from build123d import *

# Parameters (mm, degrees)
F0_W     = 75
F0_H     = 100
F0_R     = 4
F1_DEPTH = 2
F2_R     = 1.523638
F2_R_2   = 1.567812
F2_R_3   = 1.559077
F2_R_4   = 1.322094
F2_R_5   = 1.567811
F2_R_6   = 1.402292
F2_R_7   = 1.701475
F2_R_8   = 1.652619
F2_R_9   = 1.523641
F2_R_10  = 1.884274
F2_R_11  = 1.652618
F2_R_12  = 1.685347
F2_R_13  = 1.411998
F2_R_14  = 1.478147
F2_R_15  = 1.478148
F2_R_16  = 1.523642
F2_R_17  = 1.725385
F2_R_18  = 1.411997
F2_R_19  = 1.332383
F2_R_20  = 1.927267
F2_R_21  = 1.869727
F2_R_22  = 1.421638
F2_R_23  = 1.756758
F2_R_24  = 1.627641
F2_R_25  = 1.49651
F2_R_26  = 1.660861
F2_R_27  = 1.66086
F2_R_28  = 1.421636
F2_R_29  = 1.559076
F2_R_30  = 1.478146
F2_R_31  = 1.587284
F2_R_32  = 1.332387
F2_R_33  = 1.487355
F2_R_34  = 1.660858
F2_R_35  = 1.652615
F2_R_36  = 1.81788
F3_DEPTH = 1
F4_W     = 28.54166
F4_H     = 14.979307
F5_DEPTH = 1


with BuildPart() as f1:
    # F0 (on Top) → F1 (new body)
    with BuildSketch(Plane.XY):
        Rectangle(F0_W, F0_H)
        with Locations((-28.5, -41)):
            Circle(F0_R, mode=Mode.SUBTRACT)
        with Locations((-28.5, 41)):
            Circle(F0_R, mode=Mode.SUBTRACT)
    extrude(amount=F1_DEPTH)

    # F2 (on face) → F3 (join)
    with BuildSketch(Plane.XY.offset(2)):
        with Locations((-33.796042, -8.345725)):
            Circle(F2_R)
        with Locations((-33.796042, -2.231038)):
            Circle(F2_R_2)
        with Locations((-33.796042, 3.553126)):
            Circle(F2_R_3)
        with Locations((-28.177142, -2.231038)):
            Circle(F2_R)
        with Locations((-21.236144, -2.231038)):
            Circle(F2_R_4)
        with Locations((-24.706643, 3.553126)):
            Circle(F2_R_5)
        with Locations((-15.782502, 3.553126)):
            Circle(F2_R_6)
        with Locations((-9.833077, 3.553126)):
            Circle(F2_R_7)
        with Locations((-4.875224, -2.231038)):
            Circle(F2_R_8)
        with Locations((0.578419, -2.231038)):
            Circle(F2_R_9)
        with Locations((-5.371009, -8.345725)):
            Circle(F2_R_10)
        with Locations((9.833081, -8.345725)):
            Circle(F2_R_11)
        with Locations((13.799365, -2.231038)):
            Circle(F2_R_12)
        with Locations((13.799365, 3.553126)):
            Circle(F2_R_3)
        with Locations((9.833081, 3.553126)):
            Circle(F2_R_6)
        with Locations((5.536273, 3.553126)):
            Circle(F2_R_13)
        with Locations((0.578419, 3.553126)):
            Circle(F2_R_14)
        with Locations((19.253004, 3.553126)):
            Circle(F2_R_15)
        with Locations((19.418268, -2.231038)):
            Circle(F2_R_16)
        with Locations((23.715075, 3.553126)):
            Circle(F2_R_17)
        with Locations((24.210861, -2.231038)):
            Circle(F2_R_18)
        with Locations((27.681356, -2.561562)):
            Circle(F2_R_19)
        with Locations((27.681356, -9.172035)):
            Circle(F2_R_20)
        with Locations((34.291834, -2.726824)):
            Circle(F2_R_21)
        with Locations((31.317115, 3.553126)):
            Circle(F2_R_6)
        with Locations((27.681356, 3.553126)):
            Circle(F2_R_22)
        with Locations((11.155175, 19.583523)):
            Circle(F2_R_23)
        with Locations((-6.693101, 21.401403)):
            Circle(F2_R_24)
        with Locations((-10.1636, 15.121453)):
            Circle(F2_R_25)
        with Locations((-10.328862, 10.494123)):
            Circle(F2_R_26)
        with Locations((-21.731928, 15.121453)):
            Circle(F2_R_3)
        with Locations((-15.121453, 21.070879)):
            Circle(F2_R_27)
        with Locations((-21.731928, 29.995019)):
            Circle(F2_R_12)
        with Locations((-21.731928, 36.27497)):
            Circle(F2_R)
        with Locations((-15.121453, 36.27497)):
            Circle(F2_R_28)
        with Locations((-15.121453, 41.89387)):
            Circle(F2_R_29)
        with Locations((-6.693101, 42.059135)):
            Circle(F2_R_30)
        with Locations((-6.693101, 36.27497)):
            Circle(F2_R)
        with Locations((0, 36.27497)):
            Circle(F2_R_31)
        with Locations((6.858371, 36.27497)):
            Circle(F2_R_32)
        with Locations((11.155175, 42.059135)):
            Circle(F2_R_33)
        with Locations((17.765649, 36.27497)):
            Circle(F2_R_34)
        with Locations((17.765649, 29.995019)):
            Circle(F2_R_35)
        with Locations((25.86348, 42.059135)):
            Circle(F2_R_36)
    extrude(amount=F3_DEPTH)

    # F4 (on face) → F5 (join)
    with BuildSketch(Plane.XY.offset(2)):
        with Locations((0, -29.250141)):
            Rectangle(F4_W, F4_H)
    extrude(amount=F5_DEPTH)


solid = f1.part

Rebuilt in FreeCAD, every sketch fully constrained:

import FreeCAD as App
import Part
import Sketcher
Q = App.Units.Quantity


def add_polygon(sketch, points):
    """Adds a closed chain of lines whose ends are joined by coincident constraints."""
    first, n = sketch.GeometryCount, len(points)
    for a, b in zip(points, points[1:] + points[:1]):
        sketch.addGeometry(Part.LineSegment(App.Vector(*a, 0), App.Vector(*b, 0)), False)
    for i in range(n):
        sketch.addConstraint(Sketcher.Constraint("Coincident", first + i, 2, first + (i + 1) % n, 1))

doc = App.newDocument("Part")
params = doc.addObject("Spreadsheet::Sheet", "Params")
for row, (alias, value) in enumerate([
    ("sketch1_diameter", "8 mm"),
    ("sketch1_width", "75 mm"),
    ("sketch1_height", "100 mm"),
    ("pad1_length", "2 mm"),
    ("pad2_length", "1 mm"),
    ("pad3_length", "1 mm"),
], start=1):
    params.set(f"A{row}", alias)
    params.set(f"B{row}", "=" + value)
    params.setAlias(f"B{row}", alias)

body = doc.addObject("PartDesign::Body", "Body")

# Sketch on XY plane
sketch1 = body.newObject("Sketcher::SketchObject", "Sketch")
sketch1.AttachmentSupport = (doc.getObject("XY_Plane"), [""])
sketch1.MapMode = "FlatFace"
add_polygon(sketch1, [(-37.5, 50), (-37.5, -50), (37.5, -50), (37.5, 50)])  # lines 0-3
sketch1.addGeometry(Part.Circle(App.Vector(-28.5, -41, 0), App.Vector(0, 0, 1), 4), False)  # 4
sketch1.addGeometry(Part.Circle(App.Vector(-28.5, 41, 0), App.Vector(0, 0, 1), 4), False)  # 5
sketch1.addConstraint([
    Sketcher.Constraint("Vertical", 0),
    Sketcher.Constraint("Horizontal", 1),
    Sketcher.Constraint("Vertical", 2),
    Sketcher.Constraint("Horizontal", 3),
    Sketcher.Constraint("Equal", 4, 5),
    Sketcher.Constraint("Symmetric", 0, 2, 2, 2, -1, 1),
    Sketcher.Constraint("Symmetric", 4, 3, 5, 3, -1),
    Sketcher.Constraint("Diameter", 4, Q("8 mm")),
    Sketcher.Constraint("DistanceX", 1, 1, 1, 2, Q("75 mm")),
    Sketcher.Constraint("DistanceY", 0, 2, 0, 1, Q("100 mm")),
    Sketcher.Constraint("DistanceY", 4, 3, -1, 1, Q("41 mm")),
    Sketcher.Constraint("DistanceX", 0, 2, 4, 3, Q("9 mm")),
])
sketch1.setExpression("Constraints[11]", "Params.sketch1_diameter")
sketch1.setExpression("Constraints[12]", "Params.sketch1_width")
sketch1.setExpression("Constraints[13]", "Params.sketch1_height")
pad1 = body.newObject("PartDesign::Pad", "Pad")
pad1.Profile = sketch1
pad1.setExpression("Length", "Params.pad1_length")

# Sketch on XY plane
sketch2 = body.newObject("Sketcher::SketchObject", "Sketch001")
sketch2.AttachmentSupport = (doc.getObject("XY_Plane"), [""])
sketch2.MapMode = "FlatFace"
sketch2.AttachmentOffset = App.Placement(App.Vector(0, 0, 2), App.Rotation())
sketch2.addGeometry([
    Part.Circle(App.Vector(-33.796042, -8.345725, 0), App.Vector(0, 0, 1), 1.523638),  # 0
    Part.Circle(App.Vector(-33.796042, -2.231038, 0), App.Vector(0, 0, 1), 1.567812),  # 1
    Part.Circle(App.Vector(-33.796042, 3.553126, 0), App.Vector(0, 0, 1), 1.559077),  # 2
    Part.Circle(App.Vector(-28.177142, -2.231038, 0), App.Vector(0, 0, 1), 1.523638),  # 3
    Part.Circle(App.Vector(-21.236144, -2.231038, 0), App.Vector(0, 0, 1), 1.322094),  # 4
    Part.Circle(App.Vector(-24.706643, 3.553126, 0), App.Vector(0, 0, 1), 1.567811),  # 5
    Part.Circle(App.Vector(-15.782502, 3.553126, 0), App.Vector(0, 0, 1), 1.402292),  # 6
    Part.Circle(App.Vector(-9.833077, 3.553126, 0), App.Vector(0, 0, 1), 1.701475),  # 7
    Part.Circle(App.Vector(-4.875224, -2.231038, 0), App.Vector(0, 0, 1), 1.652619),  # 8
    Part.Circle(App.Vector(0.578419, -2.231038, 0), App.Vector(0, 0, 1), 1.523641),  # 9
    Part.Circle(App.Vector(-5.371009, -8.345725, 0), App.Vector(0, 0, 1), 1.884274),  # 10
    Part.Circle(App.Vector(9.833081, -8.345725, 0), App.Vector(0, 0, 1), 1.652618),  # 11
    Part.Circle(App.Vector(13.799365, -2.231038, 0), App.Vector(0, 0, 1), 1.685347),  # 12
    Part.Circle(App.Vector(13.799365, 3.553126, 0), App.Vector(0, 0, 1), 1.559077),  # 13
    Part.Circle(App.Vector(9.833081, 3.553126, 0), App.Vector(0, 0, 1), 1.402292),  # 14
    Part.Circle(App.Vector(5.536273, 3.553126, 0), App.Vector(0, 0, 1), 1.411998),  # 15
    Part.Circle(App.Vector(0.578419, 3.553126, 0), App.Vector(0, 0, 1), 1.478147),  # 16
    Part.Circle(App.Vector(19.253004, 3.553126, 0), App.Vector(0, 0, 1), 1.478148),  # 17
    Part.Circle(App.Vector(19.418268, -2.231038, 0), App.Vector(0, 0, 1), 1.523642),  # 18
    Part.Circle(App.Vector(23.715075, 3.553126, 0), App.Vector(0, 0, 1), 1.725385),  # 19
    Part.Circle(App.Vector(24.210861, -2.231038, 0), App.Vector(0, 0, 1), 1.411997),  # 20
    Part.Circle(App.Vector(27.681356, -2.561562, 0), App.Vector(0, 0, 1), 1.332383),  # 21
    Part.Circle(App.Vector(27.681356, -9.172035, 0), App.Vector(0, 0, 1), 1.927267),  # 22
    Part.Circle(App.Vector(34.291834, -2.726824, 0), App.Vector(0, 0, 1), 1.869727),  # 23
    Part.Circle(App.Vector(31.317115, 3.553126, 0), App.Vector(0, 0, 1), 1.402292),  # 24
    Part.Circle(App.Vector(27.681356, 3.553126, 0), App.Vector(0, 0, 1), 1.421638),  # 25
    Part.Circle(App.Vector(11.155175, 19.583523, 0), App.Vector(0, 0, 1), 1.756758),  # 26
    Part.Circle(App.Vector(-6.693101, 21.401403, 0), App.Vector(0, 0, 1), 1.627641),  # 27
    Part.Circle(App.Vector(-10.1636, 15.121453, 0), App.Vector(0, 0, 1), 1.49651),  # 28
    Part.Circle(App.Vector(-10.328862, 10.494123, 0), App.Vector(0, 0, 1), 1.660861),  # 29
    Part.Circle(App.Vector(-21.731928, 15.121453, 0), App.Vector(0, 0, 1), 1.559077),  # 30
    Part.Circle(App.Vector(-15.121453, 21.070879, 0), App.Vector(0, 0, 1), 1.66086),  # 31
    Part.Circle(App.Vector(-21.731928, 29.995019, 0), App.Vector(0, 0, 1), 1.685347),  # 32
    Part.Circle(App.Vector(-21.731928, 36.27497, 0), App.Vector(0, 0, 1), 1.523638),  # 33
    Part.Circle(App.Vector(-15.121453, 36.27497, 0), App.Vector(0, 0, 1), 1.421636),  # 34
    Part.Circle(App.Vector(-15.121453, 41.89387, 0), App.Vector(0, 0, 1), 1.559076),  # 35
    Part.Circle(App.Vector(-6.693101, 42.059135, 0), App.Vector(0, 0, 1), 1.478146),  # 36
    Part.Circle(App.Vector(-6.693101, 36.27497, 0), App.Vector(0, 0, 1), 1.523638),  # 37
    Part.Circle(App.Vector(0, 36.27497, 0), App.Vector(0, 0, 1), 1.587284),  # 38
    Part.Circle(App.Vector(6.858371, 36.27497, 0), App.Vector(0, 0, 1), 1.332387),  # 39
    Part.Circle(App.Vector(11.155175, 42.059135, 0), App.Vector(0, 0, 1), 1.487355),  # 40
    Part.Circle(App.Vector(17.765649, 36.27497, 0), App.Vector(0, 0, 1), 1.660858),  # 41
    Part.Circle(App.Vector(17.765649, 29.995019, 0), App.Vector(0, 0, 1), 1.652615),  # 42
    Part.Circle(App.Vector(25.86348, 42.059135, 0), App.Vector(0, 0, 1), 1.81788),  # 43
], False)
sketch2.addConstraint([
    Sketcher.Constraint("Equal", 0, 3),
    Sketcher.Constraint("Equal", 1, 5),
    Sketcher.Constraint("Equal", 8, 11),
    Sketcher.Constraint("Equal", 2, 13),
    Sketcher.Constraint("Equal", 6, 14),
    Sketcher.Constraint("Equal", 16, 17),
    Sketcher.Constraint("Equal", 9, 18),
    Sketcher.Constraint("Equal", 15, 20),
    Sketcher.Constraint("Equal", 14, 24),
    Sketcher.Constraint("Equal", 13, 30),
    Sketcher.Constraint("Equal", 29, 31),
    Sketcher.Constraint("Equal", 12, 32),
    Sketcher.Constraint("Equal", 3, 33),
    Sketcher.Constraint("Equal", 30, 35),
    Sketcher.Constraint("Equal", 16, 36),
    Sketcher.Constraint("Equal", 33, 37),
    Sketcher.Constraint("Symmetric", 7, 3, 14, 3, -2),
    Sketcher.Constraint("PointOnObject", 38, 3, -2),
    Sketcher.Constraint("Horizontal", 1, 3, 3, 3),
    Sketcher.Constraint("Horizontal", 3, 3, 4, 3),
    Sketcher.Constraint("Horizontal", 2, 3, 5, 3),
    Sketcher.Constraint("Horizontal", 5, 3, 6, 3),
    Sketcher.Constraint("Horizontal", 6, 3, 7, 3),
    Sketcher.Constraint("Horizontal", 4, 3, 8, 3),
    Sketcher.Constraint("Horizontal", 8, 3, 9, 3),
    Sketcher.Constraint("Horizontal", 0, 3, 10, 3),
    Sketcher.Constraint("Horizontal", 10, 3, 11, 3),
    Sketcher.Constraint("Horizontal", 9, 3, 12, 3),
    Sketcher.Constraint("Horizontal", 7, 3, 13, 3),
    Sketcher.Constraint("Horizontal", 14, 3, 15, 3),
    Sketcher.Constraint("Horizontal", 15, 3, 16, 3),
    Sketcher.Constraint("Horizontal", 16, 3, 17, 3),
    Sketcher.Constraint("Horizontal", 12, 3, 18, 3),
    Sketcher.Constraint("Horizontal", 17, 3, 19, 3),
    Sketcher.Constraint("Horizontal", 18, 3, 20, 3),
    Sketcher.Constraint("Horizontal", 19, 3, 24, 3),
    Sketcher.Constraint("Horizontal", 24, 3, 25, 3),
    Sketcher.Constraint("Horizontal", 28, 3, 30, 3),
    Sketcher.Constraint("Horizontal", 33, 3, 34, 3),
    Sketcher.Constraint("Horizontal", 34, 3, 37, 3),
    Sketcher.Constraint("Horizontal", 37, 3, 38, 3),
    Sketcher.Constraint("Horizontal", 38, 3, 39, 3),
    Sketcher.Constraint("Horizontal", 36, 3, 40, 3),
    Sketcher.Constraint("Horizontal", 39, 3, 41, 3),
    Sketcher.Constraint("Horizontal", 32, 3, 42, 3),
    Sketcher.Constraint("Horizontal", 40, 3, 43, 3),
    Sketcher.Constraint("Vertical", 0, 3, 1, 3),
    Sketcher.Constraint("Vertical", 1, 3, 2, 3),
    Sketcher.Constraint("Vertical", 12, 3, 13, 3),
    Sketcher.Constraint("Vertical", 11, 3, 14, 3),
    Sketcher.Constraint("Vertical", 9, 3, 16, 3),
    Sketcher.Constraint("Vertical", 21, 3, 22, 3),
    Sketcher.Constraint("Vertical", 22, 3, 25, 3),
    Sketcher.Constraint("Vertical", 30, 3, 32, 3),
    Sketcher.Constraint("Vertical", 32, 3, 33, 3),
    Sketcher.Constraint("Vertical", 31, 3, 34, 3),
    Sketcher.Constraint("Vertical", 34, 3, 35, 3),
    Sketcher.Constraint("Vertical", 27, 3, 36, 3),
    Sketcher.Constraint("Vertical", 36, 3, 37, 3),
    Sketcher.Constraint("Vertical", 26, 3, 40, 3),
    Sketcher.Constraint("Vertical", 41, 3, 42, 3),
    Sketcher.Constraint("Diameter", 4, Q("2.644188 mm")),
    Sketcher.Constraint("Diameter", 7, Q("3.40295 mm")),
    Sketcher.Constraint("Diameter", 8, Q("3.305238 mm")),
    Sketcher.Constraint("Diameter", 9, Q("3.047282 mm")),
    Sketcher.Constraint("Diameter", 10, Q("3.768548 mm")),
    Sketcher.Constraint("Diameter", 19, Q("3.45077 mm")),
    Sketcher.Constraint("Diameter", 27, Q("3.255282 mm")),
    Sketcher.Constraint("Diameter", 28, Q("2.99302 mm")),
    Sketcher.Constraint("Diameter", 29, Q("3.321722 mm")),
    Sketcher.Constraint("Diameter", 34, Q("2.843272 mm")),
    Sketcher.Constraint("Diameter", 35, Q("3.118152 mm")),
    Sketcher.Constraint("Diameter", 36, Q("2.956292 mm")),
    Sketcher.Constraint("Diameter", 40, Q("2.97471 mm")),
    Sketcher.Constraint("Diameter", 42, Q("3.30523 mm")),
    Sketcher.Constraint("Diameter", 43, Q("3.63576 mm")),
    Sketcher.Constraint("Diameter", 0, Q("3.047276 mm")),
    Sketcher.Constraint("Diameter", 1, Q("3.135624 mm")),
    Sketcher.Constraint("Diameter", 6, Q("2.804584 mm")),
    Sketcher.Constraint("Diameter", 12, Q("3.370694 mm")),
    Sketcher.Constraint("Diameter", 15, Q("2.823996 mm")),
    Sketcher.Constraint("Diameter", 21, Q("2.664766 mm")),
    Sketcher.Constraint("Diameter", 22, Q("3.854534 mm")),
    Sketcher.Constraint("Diameter", 23, Q("3.739454 mm")),
    Sketcher.Constraint("Diameter", 25, Q("2.843276 mm")),
    Sketcher.Constraint("Diameter", 26, Q("3.513516 mm")),
    Sketcher.Constraint("Diameter", 38, Q("3.174568 mm")),
    Sketcher.Constraint("Diameter", 39, Q("2.664774 mm")),
    Sketcher.Constraint("Diameter", 41, Q("3.321716 mm")),
    Sketcher.Constraint("DistanceX", 3, 3, 4, 3, Q("6.940998 mm")),
    Sketcher.Constraint("DistanceX", 6, 3, -1, 1, Q("15.782502 mm")),
    Sketcher.Constraint("DistanceX", 27, 3, -1, 1, Q("6.693101 mm")),
    Sketcher.Constraint("DistanceX", 28, 3, -1, 1, Q("10.1636 mm")),
    Sketcher.Constraint("DistanceX", 1, 3, 3, 3, Q("5.6189 mm")),
    Sketcher.Constraint("DistanceX", 3, 3, 5, 3, Q("3.470499 mm")),
    Sketcher.Constraint("DistanceX", 15, 3, 26, 3, Q("5.618902 mm")),
    Sketcher.Constraint("DistanceY", 34, 3, 35, 3, Q("5.6189 mm")),
    Sketcher.Constraint("DistanceX", 3, 3, -1, 1, Q("28.177142 mm")),
    Sketcher.Constraint("DistanceX", -1, 1, 9, 3, Q("0.578419 mm")),
    Sketcher.Constraint("DistanceX", 10, 3, -1, 1, Q("5.371009 mm")),
    Sketcher.Constraint("DistanceX", -1, 1, 11, 3, Q("9.833081 mm")),
    Sketcher.Constraint("DistanceX", -1, 1, 18, 3, Q("19.418268 mm")),
    Sketcher.Constraint("DistanceX", -1, 1, 20, 3, Q("24.210861 mm")),
    Sketcher.Constraint("DistanceY", 21, 3, -1, 1, Q("2.561562 mm")),
    Sketcher.Constraint("DistanceX", 30, 3, -1, 1, Q("21.731928 mm")),
    Sketcher.Constraint("DistanceY", -1, 1, 31, 3, Q("21.070879 mm")),
    Sketcher.Constraint("DistanceY", -1, 1, 32, 3, Q("29.995019 mm")),
    Sketcher.Constraint("DistanceY", -1, 1, 33, 3, Q("36.27497 mm")),
    Sketcher.Constraint("DistanceX", -1, 1, 39, 3, Q("6.858371 mm")),
    Sketcher.Constraint("DistanceX", -1, 1, 41, 3, Q("17.765649 mm")),
    Sketcher.Constraint("DistanceX", -1, 1, 43, 3, Q("25.86348 mm")),
    Sketcher.Constraint("DistanceY", 0, 3, 2, 3, Q("11.898851 mm")),
    Sketcher.Constraint("DistanceX", 4, 3, 8, 3, Q("16.36092 mm")),
    Sketcher.Constraint("DistanceX", 8, 3, 12, 3, Q("18.674589 mm")),
    Sketcher.Constraint("DistanceX", 13, 3, 17, 3, Q("5.453639 mm")),
    Sketcher.Constraint("DistanceX", 15, 3, 17, 3, Q("13.716731 mm")),
    Sketcher.Constraint("DistanceX", 17, 3, 19, 3, Q("4.462071 mm")),
    Sketcher.Constraint("DistanceX", 19, 3, 21, 3, Q("3.966281 mm")),
    Sketcher.Constraint("DistanceY", 22, 3, 19, 3, Q("12.725161 mm")),
    Sketcher.Constraint("DistanceX", 21, 3, 23, 3, Q("6.610478 mm")),
    Sketcher.Constraint("DistanceY", 22, 3, 23, 3, Q("6.445211 mm")),
    Sketcher.Constraint("DistanceX", 24, 3, 23, 3, Q("2.974719 mm")),
    Sketcher.Constraint("DistanceY", 26, 3, 27, 3, Q("1.81788 mm")),
    Sketcher.Constraint("DistanceY", 28, 3, 27, 3, Q("6.27995 mm")),
    Sketcher.Constraint("DistanceY", 8, 3, 28, 3, Q("17.352491 mm")),
    Sketcher.Constraint("DistanceY", 29, 3, 28, 3, Q("4.62733 mm")),
    Sketcher.Constraint("DistanceX", 6, 3, 29, 3, Q("5.45364 mm")),
    Sketcher.Constraint("DistanceX", 31, 3, 29, 3, Q("4.792591 mm")),
    Sketcher.Constraint("DistanceY", 27, 3, 36, 3, Q("20.657732 mm")),
    Sketcher.Constraint("DistanceY", 0, 3, -1, 1, Q("8.345725 mm")),
    Sketcher.Constraint("DistanceY", 1, 3, -1, 1, Q("2.231038 mm")),
])
pad2 = body.newObject("PartDesign::Pad", "Pad001")
pad2.Profile = sketch2
pad2.setExpression("Length", "Params.pad2_length")

# Sketch on XY plane
sketch3 = body.newObject("Sketcher::SketchObject", "Sketch002")
sketch3.AttachmentSupport = (doc.getObject("XY_Plane"), [""])
sketch3.MapMode = "FlatFace"
sketch3.AttachmentOffset = App.Placement(App.Vector(0, 0, 2), App.Rotation())
add_polygon(sketch3, [(-14.27083, -21.760487), (-14.27083, -36.739795), (14.27083, -36.739795), (14.27083, -21.760487)])  # lines 0-3
sketch3.addConstraint([
    Sketcher.Constraint("Vertical", 0),
    Sketcher.Constraint("Horizontal", 1),
    Sketcher.Constraint("Vertical", 2),
    Sketcher.Constraint("Horizontal", 3),
    Sketcher.Constraint("DistanceX", 1, 1, 1, 2, Q("28.54166 mm")),
    Sketcher.Constraint("DistanceY", 0, 2, 0, 1, Q("14.979307 mm")),
    Sketcher.Constraint("DistanceX", 0, 2, -1, 1, Q("14.27083 mm")),
    Sketcher.Constraint("DistanceY", 0, 2, -1, 1, Q("36.739795 mm")),
])
pad3 = body.newObject("PartDesign::Pad", "Pad002")
pad3.Profile = sketch3
pad3.setExpression("Length", "Params.pad3_length")

doc.recompute()
